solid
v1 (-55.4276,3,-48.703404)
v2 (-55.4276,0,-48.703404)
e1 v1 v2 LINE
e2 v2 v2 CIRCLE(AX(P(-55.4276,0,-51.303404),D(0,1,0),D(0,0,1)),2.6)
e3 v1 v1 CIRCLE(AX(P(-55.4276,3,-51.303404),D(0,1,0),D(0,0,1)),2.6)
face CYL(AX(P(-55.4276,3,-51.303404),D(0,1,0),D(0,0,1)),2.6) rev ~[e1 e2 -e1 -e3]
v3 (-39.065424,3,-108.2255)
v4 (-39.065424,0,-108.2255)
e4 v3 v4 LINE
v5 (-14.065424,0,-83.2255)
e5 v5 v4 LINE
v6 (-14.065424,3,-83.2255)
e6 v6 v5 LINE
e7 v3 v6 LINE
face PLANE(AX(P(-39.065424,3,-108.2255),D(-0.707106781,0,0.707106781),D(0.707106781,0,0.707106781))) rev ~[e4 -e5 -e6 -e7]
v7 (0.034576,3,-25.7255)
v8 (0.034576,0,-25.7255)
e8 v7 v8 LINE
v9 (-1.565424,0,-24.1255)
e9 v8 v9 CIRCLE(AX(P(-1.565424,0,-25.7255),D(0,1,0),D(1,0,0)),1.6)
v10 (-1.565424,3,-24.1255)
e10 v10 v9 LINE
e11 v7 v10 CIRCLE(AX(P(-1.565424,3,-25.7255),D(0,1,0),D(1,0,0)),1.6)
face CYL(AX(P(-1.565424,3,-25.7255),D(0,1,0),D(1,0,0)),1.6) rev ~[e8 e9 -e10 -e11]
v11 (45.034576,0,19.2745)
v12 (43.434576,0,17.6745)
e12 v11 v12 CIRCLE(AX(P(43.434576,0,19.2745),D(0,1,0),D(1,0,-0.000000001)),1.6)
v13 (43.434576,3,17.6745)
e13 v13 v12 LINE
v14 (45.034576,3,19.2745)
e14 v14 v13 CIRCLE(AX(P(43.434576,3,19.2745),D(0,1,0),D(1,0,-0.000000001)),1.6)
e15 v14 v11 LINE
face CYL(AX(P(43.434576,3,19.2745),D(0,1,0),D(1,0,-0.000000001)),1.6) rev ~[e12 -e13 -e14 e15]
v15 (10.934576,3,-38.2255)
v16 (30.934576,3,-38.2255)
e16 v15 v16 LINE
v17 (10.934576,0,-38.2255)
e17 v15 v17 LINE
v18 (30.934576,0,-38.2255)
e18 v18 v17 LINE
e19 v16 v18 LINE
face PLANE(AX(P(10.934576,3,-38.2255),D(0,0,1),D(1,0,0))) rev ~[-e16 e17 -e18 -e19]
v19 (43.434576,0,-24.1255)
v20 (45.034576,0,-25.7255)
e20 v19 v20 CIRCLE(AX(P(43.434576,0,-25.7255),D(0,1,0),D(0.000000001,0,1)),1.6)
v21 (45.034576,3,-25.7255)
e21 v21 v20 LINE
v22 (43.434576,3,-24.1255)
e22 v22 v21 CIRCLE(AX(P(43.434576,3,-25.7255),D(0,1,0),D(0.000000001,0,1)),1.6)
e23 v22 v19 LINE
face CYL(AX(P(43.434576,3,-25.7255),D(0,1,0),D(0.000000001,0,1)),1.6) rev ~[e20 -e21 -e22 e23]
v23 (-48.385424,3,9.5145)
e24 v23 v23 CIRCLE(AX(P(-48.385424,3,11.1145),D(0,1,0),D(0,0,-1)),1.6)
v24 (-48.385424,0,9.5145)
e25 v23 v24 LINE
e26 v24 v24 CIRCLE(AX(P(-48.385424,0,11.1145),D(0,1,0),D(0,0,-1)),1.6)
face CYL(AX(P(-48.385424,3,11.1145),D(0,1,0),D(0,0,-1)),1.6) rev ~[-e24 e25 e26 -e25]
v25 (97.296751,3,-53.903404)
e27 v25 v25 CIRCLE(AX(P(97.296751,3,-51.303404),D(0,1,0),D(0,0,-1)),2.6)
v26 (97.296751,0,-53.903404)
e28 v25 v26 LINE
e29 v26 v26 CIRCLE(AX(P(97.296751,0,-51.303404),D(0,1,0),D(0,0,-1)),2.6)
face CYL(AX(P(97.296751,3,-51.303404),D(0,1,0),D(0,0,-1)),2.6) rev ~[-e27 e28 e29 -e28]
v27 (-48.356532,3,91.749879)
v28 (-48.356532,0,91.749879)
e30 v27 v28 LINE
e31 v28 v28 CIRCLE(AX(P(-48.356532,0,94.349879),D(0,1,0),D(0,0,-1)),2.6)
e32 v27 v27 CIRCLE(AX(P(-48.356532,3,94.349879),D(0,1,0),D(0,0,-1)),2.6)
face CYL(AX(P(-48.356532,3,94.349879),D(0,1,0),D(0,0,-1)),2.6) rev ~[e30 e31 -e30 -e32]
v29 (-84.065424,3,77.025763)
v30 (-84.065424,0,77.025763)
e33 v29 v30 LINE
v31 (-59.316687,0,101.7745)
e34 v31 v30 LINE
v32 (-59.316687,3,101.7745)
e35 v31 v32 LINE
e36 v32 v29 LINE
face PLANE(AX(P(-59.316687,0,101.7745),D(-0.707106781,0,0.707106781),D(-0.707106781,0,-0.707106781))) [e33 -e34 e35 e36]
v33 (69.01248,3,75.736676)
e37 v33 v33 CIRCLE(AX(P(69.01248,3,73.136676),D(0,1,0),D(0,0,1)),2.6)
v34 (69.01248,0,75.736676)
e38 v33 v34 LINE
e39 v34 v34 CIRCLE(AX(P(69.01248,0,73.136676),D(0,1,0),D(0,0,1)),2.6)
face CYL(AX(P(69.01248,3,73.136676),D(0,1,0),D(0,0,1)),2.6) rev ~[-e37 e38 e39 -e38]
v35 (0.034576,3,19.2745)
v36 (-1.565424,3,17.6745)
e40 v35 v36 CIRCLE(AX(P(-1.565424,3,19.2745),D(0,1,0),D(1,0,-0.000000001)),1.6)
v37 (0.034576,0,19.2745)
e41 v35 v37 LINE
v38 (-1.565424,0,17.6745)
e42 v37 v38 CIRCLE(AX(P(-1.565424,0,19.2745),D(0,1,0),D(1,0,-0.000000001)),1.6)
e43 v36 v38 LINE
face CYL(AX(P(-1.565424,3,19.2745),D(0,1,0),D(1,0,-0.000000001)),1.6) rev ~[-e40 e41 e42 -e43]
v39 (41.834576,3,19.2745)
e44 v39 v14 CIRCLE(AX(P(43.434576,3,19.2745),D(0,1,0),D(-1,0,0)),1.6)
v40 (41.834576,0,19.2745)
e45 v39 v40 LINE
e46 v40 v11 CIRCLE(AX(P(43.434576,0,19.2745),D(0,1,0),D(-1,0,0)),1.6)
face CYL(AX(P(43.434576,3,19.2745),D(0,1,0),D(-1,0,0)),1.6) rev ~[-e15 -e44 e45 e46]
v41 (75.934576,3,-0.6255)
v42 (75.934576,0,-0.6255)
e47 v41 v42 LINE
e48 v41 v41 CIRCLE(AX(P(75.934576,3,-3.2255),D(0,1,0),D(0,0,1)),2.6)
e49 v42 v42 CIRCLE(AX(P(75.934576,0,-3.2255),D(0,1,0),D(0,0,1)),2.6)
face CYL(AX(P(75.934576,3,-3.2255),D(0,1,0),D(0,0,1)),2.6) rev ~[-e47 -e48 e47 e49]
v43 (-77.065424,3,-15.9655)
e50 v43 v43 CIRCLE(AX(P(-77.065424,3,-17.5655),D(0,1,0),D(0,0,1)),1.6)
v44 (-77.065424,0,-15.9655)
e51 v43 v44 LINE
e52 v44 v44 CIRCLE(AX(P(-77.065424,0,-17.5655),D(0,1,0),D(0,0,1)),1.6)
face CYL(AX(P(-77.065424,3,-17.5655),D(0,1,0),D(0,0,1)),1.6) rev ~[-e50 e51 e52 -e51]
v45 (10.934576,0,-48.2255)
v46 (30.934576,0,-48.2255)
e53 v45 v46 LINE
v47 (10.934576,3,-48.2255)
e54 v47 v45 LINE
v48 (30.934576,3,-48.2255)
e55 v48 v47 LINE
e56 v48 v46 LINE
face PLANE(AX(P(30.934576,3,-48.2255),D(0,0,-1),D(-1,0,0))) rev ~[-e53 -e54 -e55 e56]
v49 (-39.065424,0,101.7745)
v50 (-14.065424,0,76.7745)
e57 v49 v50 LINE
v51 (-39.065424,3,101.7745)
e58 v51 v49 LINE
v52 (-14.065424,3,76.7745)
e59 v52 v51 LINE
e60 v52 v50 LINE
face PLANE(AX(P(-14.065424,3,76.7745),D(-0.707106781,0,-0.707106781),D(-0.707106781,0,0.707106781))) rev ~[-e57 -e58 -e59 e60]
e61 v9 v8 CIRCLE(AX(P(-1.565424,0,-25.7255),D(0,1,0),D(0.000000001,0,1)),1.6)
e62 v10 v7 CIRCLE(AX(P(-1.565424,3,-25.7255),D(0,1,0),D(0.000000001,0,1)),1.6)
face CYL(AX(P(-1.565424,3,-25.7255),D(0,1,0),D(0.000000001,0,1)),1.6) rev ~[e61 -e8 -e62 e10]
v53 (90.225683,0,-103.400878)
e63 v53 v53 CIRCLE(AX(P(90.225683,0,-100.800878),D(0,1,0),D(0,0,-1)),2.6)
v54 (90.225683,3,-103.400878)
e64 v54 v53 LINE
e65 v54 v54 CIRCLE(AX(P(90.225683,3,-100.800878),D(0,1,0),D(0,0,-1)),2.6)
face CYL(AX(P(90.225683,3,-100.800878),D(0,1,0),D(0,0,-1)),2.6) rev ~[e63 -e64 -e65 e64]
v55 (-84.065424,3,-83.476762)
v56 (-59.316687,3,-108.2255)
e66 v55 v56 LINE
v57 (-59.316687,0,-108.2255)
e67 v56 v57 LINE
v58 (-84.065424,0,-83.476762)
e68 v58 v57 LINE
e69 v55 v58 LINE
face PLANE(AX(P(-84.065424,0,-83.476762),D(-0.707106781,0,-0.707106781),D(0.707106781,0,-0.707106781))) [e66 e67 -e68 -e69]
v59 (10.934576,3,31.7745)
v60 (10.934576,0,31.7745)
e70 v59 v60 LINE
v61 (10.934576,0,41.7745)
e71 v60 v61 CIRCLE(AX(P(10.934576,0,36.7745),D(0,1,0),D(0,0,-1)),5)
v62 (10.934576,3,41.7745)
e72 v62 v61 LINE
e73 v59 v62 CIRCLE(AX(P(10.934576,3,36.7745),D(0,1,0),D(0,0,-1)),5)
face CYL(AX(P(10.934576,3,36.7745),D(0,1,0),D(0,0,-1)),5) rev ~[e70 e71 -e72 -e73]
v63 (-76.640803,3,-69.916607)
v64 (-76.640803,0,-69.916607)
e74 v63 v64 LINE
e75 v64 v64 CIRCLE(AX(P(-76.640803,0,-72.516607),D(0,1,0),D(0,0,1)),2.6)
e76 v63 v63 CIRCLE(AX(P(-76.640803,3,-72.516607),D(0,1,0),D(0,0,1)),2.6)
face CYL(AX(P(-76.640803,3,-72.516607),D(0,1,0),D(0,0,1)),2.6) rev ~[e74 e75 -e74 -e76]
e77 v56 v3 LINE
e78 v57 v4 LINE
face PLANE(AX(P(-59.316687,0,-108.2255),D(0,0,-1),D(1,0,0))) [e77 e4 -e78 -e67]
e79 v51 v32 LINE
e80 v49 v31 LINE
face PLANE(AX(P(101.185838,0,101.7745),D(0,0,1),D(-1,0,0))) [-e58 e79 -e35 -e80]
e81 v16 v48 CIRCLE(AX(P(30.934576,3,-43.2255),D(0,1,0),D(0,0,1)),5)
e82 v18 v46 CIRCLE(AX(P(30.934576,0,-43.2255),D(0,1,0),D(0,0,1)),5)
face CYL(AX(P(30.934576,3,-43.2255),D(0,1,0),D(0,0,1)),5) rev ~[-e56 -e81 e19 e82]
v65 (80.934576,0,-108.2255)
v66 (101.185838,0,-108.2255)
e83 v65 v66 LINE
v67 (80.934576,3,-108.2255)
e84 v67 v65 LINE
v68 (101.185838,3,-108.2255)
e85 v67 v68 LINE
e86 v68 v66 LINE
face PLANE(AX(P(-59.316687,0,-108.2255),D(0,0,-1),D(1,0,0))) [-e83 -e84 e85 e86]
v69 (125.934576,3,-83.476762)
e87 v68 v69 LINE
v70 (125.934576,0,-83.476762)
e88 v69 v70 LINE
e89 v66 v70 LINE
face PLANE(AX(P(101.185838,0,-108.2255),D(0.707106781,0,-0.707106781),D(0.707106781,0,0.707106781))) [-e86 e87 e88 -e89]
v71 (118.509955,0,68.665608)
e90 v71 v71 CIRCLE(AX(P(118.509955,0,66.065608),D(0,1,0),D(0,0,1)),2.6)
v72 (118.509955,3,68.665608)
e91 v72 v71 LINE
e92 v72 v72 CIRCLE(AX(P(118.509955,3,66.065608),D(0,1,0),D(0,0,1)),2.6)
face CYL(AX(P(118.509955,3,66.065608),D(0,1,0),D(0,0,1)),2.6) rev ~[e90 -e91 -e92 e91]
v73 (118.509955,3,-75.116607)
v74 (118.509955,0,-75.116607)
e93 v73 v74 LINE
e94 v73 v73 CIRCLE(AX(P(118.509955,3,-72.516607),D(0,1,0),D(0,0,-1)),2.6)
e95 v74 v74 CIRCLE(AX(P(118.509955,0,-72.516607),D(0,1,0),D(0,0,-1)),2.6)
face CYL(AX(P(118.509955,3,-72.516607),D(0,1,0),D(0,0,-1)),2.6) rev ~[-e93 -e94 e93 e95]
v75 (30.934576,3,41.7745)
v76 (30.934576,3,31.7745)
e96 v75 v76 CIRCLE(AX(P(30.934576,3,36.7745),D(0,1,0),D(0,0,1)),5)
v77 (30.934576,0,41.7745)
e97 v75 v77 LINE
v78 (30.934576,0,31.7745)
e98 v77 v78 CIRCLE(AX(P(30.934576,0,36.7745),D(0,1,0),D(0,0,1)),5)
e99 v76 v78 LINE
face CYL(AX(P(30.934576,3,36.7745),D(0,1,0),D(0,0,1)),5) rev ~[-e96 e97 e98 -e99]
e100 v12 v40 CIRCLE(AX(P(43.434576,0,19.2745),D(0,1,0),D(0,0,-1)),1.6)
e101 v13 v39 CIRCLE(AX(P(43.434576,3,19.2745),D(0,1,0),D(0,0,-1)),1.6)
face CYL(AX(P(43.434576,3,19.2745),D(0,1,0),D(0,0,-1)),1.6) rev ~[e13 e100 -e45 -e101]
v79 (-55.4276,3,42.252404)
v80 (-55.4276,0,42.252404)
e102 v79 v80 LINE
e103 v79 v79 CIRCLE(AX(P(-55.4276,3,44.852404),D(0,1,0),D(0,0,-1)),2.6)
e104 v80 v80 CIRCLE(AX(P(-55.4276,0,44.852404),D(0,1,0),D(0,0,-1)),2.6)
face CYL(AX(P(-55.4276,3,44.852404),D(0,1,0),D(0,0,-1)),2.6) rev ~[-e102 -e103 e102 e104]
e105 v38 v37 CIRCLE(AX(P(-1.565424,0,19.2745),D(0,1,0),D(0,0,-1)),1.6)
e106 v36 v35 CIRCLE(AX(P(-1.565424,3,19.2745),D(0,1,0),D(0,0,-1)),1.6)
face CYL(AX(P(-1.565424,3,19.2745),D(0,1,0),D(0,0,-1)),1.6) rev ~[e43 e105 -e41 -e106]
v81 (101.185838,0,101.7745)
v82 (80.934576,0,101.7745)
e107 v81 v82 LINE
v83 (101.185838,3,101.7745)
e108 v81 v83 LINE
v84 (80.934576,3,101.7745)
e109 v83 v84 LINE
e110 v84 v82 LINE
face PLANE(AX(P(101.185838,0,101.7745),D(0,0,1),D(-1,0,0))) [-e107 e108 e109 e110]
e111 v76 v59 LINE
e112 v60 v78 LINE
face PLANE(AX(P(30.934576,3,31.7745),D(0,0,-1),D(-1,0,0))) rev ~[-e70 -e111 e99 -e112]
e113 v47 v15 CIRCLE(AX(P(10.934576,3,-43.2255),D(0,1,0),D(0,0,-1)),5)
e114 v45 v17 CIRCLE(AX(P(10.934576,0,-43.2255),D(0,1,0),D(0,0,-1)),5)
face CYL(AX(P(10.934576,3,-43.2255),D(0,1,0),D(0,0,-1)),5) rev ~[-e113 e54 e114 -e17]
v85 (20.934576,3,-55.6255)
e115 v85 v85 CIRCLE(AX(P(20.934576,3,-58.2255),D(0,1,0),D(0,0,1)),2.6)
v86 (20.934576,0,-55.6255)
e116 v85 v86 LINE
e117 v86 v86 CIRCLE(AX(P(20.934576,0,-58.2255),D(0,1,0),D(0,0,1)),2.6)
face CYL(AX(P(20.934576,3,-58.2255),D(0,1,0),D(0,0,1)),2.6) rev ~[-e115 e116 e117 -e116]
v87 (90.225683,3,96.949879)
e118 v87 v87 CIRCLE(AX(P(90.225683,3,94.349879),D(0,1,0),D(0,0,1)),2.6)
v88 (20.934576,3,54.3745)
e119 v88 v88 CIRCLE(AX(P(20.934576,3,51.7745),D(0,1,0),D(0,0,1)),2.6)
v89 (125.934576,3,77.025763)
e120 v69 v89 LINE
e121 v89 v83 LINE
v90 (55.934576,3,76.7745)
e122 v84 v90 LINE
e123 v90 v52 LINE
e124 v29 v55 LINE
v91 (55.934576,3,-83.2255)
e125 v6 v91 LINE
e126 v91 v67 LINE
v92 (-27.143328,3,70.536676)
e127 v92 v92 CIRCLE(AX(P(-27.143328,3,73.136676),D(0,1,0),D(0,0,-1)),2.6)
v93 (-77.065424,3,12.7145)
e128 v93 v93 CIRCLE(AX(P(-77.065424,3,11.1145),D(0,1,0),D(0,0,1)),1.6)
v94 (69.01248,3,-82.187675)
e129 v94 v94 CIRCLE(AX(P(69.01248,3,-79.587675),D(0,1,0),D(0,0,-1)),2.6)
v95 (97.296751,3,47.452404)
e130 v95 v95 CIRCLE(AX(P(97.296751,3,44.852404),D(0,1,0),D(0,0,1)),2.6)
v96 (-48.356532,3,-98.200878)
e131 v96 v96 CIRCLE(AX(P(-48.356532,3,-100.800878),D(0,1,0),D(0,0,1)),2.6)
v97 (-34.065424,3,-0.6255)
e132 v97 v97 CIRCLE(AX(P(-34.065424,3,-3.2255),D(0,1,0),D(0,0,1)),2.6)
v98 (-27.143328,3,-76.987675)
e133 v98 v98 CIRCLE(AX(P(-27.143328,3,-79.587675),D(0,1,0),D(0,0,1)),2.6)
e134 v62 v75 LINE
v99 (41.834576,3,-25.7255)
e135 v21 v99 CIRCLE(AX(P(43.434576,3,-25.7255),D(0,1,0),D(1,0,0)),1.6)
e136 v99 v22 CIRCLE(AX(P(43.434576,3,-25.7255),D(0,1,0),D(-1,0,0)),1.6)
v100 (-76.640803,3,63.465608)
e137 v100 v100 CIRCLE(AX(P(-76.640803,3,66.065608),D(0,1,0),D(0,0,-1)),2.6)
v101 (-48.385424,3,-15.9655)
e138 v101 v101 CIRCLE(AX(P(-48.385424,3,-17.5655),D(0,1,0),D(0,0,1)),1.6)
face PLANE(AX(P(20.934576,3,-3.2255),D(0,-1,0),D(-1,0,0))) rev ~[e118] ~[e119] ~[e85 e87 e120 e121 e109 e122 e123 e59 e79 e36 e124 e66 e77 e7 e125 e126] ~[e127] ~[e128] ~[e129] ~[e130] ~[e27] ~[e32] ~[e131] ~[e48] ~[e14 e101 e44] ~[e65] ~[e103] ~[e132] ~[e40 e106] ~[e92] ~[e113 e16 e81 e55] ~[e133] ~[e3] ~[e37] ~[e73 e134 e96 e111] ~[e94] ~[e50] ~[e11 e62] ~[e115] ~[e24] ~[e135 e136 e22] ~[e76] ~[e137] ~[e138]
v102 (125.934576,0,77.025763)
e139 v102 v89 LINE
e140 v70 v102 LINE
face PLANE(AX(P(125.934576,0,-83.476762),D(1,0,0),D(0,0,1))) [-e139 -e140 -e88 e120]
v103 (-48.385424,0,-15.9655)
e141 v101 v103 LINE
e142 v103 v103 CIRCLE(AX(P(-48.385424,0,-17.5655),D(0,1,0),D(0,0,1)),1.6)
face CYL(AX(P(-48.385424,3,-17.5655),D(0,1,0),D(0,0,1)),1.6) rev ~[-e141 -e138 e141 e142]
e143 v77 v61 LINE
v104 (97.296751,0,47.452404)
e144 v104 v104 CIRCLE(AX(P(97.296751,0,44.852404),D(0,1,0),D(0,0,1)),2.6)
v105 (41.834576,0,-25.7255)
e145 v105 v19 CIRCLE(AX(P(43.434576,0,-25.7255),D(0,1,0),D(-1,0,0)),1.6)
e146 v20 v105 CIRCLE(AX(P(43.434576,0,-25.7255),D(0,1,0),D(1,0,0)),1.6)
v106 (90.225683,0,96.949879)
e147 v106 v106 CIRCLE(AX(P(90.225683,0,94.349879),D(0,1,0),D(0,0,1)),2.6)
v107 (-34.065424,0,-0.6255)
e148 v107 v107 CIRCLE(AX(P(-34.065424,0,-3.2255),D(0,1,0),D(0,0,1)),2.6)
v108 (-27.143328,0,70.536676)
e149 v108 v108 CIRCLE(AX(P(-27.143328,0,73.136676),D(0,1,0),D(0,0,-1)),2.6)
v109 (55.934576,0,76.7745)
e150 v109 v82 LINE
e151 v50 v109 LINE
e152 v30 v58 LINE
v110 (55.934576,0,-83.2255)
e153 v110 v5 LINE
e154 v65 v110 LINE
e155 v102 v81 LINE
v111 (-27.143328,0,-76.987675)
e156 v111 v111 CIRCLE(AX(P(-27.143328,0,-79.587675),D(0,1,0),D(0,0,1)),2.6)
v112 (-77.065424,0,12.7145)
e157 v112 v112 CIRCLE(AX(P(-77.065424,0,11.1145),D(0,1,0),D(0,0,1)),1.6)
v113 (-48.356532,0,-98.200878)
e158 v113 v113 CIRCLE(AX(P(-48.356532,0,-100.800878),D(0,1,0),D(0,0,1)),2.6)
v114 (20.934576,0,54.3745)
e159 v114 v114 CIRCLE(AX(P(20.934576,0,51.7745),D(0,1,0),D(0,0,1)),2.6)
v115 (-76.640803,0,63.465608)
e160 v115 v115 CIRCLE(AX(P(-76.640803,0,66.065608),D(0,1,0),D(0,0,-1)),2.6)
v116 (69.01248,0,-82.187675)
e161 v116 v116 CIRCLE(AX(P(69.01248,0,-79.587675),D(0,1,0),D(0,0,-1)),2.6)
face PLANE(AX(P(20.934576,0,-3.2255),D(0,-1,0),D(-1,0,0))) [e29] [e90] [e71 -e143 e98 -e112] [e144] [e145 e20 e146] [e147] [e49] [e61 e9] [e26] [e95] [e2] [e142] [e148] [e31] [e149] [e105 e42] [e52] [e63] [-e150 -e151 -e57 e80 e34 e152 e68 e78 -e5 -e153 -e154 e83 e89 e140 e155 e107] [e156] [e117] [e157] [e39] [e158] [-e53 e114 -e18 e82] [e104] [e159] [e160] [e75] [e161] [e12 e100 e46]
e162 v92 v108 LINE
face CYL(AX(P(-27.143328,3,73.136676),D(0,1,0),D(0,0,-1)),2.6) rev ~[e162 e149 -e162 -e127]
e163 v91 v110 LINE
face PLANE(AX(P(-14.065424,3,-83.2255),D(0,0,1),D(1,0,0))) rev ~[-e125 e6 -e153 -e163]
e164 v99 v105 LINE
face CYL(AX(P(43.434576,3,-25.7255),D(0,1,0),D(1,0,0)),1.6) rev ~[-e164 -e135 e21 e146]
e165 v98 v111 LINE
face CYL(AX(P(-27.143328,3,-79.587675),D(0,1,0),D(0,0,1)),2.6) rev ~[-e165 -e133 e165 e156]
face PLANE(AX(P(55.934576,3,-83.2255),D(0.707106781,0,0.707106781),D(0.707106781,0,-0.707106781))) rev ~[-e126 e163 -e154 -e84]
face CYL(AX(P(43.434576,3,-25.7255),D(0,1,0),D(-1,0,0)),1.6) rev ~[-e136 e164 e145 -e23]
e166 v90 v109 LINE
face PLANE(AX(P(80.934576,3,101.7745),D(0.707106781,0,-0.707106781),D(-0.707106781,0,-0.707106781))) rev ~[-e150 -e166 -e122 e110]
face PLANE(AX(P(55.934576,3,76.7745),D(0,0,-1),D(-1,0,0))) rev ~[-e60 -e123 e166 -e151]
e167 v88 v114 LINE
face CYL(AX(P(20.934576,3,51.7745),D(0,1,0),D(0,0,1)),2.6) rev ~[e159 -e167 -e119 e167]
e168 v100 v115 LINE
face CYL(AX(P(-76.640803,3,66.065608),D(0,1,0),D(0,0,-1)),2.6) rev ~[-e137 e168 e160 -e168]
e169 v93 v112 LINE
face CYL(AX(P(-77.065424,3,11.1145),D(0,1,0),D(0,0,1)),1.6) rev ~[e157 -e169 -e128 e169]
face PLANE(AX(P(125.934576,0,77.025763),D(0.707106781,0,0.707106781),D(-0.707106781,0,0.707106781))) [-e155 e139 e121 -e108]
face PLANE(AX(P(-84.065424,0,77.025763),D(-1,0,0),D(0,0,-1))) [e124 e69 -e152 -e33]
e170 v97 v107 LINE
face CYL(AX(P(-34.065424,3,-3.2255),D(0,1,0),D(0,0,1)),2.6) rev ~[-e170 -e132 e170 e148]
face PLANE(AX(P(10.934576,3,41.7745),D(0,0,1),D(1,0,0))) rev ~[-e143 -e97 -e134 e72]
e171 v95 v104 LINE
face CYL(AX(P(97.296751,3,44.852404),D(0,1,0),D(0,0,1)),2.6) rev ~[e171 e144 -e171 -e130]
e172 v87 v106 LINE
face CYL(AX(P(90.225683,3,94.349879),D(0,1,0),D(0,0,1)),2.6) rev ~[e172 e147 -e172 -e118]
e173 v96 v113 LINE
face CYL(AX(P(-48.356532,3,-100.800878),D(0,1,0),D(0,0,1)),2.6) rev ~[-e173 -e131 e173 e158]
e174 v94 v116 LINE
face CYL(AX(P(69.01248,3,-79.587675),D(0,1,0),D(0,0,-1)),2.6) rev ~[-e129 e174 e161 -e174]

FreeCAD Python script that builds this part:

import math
import FreeCAD as App
import Part
import Sketcher
from FreeCAD import Vector

doc = App.newDocument("Part")
body = doc.addObject("PartDesign::Body", "Body")

# Sketch on XZ plane
sketch1 = body.newObject("Sketcher::SketchObject", "Sketch")
sketch1.AttachmentSupport = (doc.getObject("XZ_Plane"), [""])
sketch1.MapMode = "FlatFace"
sketch1.addGeometry([
    Part.LineSegment(Vector(101, -108, 0), Vector(-59, -108, 0)),  # 0
    Part.LineSegment(Vector(-59, -108, 0), Vector(-84, -83, 0)),  # 1
    Part.LineSegment(Vector(-84, -83, 0), Vector(-84, 77, 0)),  # 2
    Part.LineSegment(Vector(-84, 77, 0), Vector(-59, 102, 0)),  # 3
    Part.LineSegment(Vector(-59, 102, 0), Vector(101, 102, 0)),  # 4
    Part.LineSegment(Vector(101, 102, 0), Vector(126, 77, 0)),  # 5
    Part.LineSegment(Vector(126, 77, 0), Vector(126, -83, 0)),  # 6
    Part.LineSegment(Vector(126, -83, 0), Vector(101, -108, 0)),  # 7
], False)
sketch1.addConstraint([
    Sketcher.Constraint("Coincident", 0, 2, 1, 1),
    Sketcher.Constraint("Coincident", 1, 2, 2, 1),
    Sketcher.Constraint("Coincident", 2, 2, 3, 1),
    Sketcher.Constraint("Coincident", 3, 2, 4, 1),
    Sketcher.Constraint("Coincident", 4, 2, 5, 1),
    Sketcher.Constraint("Coincident", 5, 2, 6, 1),
    Sketcher.Constraint("Coincident", 6, 2, 7, 1),
    Sketcher.Constraint("Coincident", 7, 2, 0, 1),
    Sketcher.Constraint("Horizontal", 0),
    Sketcher.Constraint("Vertical", 2),
    Sketcher.Constraint("Horizontal", 4),
    Sketcher.Constraint("Vertical", 6),
    Sketcher.Constraint("Perpendicular", 1, 3),
    Sketcher.Constraint("Perpendicular", 3, 5),
    Sketcher.Constraint("Perpendicular", 5, 7),
    Sketcher.Constraint("Horizontal", 2, 2, 5, 2),
    Sketcher.Constraint("Horizontal", 1, 2, 6, 2),
    Sketcher.Constraint("Vertical", 0, 2, 3, 2),
    Sketcher.Constraint("Vertical", 4, 2, 7, 2),
    Sketcher.Constraint("Equal", 4, 2),
    Sketcher.Constraint("Distance", 1, 35.0),
    Sketcher.Constraint("DistanceY", 0, 2, 3, 2, 210.0),
    Sketcher.Constraint("DistanceY", 0, 2, -1, 1, 108.2255),
    Sketcher.Constraint("DistanceX", -1, 1, 4, 2, 101.185838),
])
pad1 = body.newObject("PartDesign::Pad", "Pad")
pad1.Profile = sketch1
pad1.Length = 3
pad1.Reversed = True

# Sketch on XZ plane
sketch2 = body.newObject("Sketcher::SketchObject", "Sketch001")
sketch2.AttachmentSupport = (doc.getObject("XZ_Plane"), [""])
sketch2.MapMode = "FlatFace"
sketch2.AttachmentOffset = App.Placement(Vector(0, 0, -3), App.Rotation())
sketch2.addGeometry([
    Part.LineSegment(Vector(-45, 38, 0), Vector(-84, 77, 0)),  # 0
    Part.LineSegment(Vector(-84, 77, 0), Vector(-59, 102, 0)),  # 1
    Part.LineSegment(Vector(-59, 102, 0), Vector(-20, 63, 0)),  # 2
    Part.LineSegment(Vector(-20, 63, 0), Vector(-45, 38, 0)),  # 3
    Part.LineSegment(Vector(126, 77, 0), Vector(94, 37, 0)),  # 4
    Part.LineSegment(Vector(94, 37, 0), Vector(67, 59, 0)),  # 5
    Part.LineSegment(Vector(67, 59, 0), Vector(101, 102, 0)),  # 6
    Part.LineSegment(Vector(101, 102, 0), Vector(126, 77, 0)),  # 7
    Part.LineSegment(Vector(101, -108, 0), Vector(62, -70, 0)),  # 8
    Part.LineSegment(Vector(62, -70, 0), Vector(87, -45, 0)),  # 9
    Part.LineSegment(Vector(87, -45, 0), Vector(126, -83, 0)),  # 10
    Part.LineSegment(Vector(126, -83, 0), Vector(101, -108, 0)),  # 11
    Part.LineSegment(Vector(-24, -66, 0), Vector(-59, -108, 0)),  # 12
    Part.LineSegment(Vector(-59, -108, 0), Vector(-84, -83, 0)),  # 13
    Part.LineSegment(Vector(-84, -83, 0), Vector(-51, -44, 0)),  # 14
    Part.LineSegment(Vector(-51, -44, 0), Vector(-24, -66, 0)),  # 15
], False)
sketch2.addConstraint([
    Sketcher.Constraint("Coincident", 0, 2, 1, 1),
    Sketcher.Constraint("Coincident", 1, 2, 2, 1),
    Sketcher.Constraint("Coincident", 2, 2, 3, 1),
    Sketcher.Constraint("Coincident", 3, 2, 0, 1),
    Sketcher.Constraint("Coincident", 4, 2, 5, 1),
    Sketcher.Constraint("Coincident", 5, 2, 6, 1),
    Sketcher.Constraint("Coincident", 6, 2, 7, 1),
    Sketcher.Constraint("Coincident", 7, 2, 4, 1),
    Sketcher.Constraint("Coincident", 8, 2, 9, 1),
    Sketcher.Constraint("Coincident", 9, 2, 10, 1),
    Sketcher.Constraint("Coincident", 10, 2, 11, 1),
    Sketcher.Constraint("Coincident", 11, 2, 8, 1),
    Sketcher.Constraint("Coincident", 12, 2, 13, 1),
    Sketcher.Constraint("Coincident", 13, 2, 14, 1),
    Sketcher.Constraint("Coincident", 14, 2, 15, 1),
    Sketcher.Constraint("Coincident", 15, 2, 12, 1),
    Sketcher.Constraint("Perpendicular", 0, 1),
    Sketcher.Constraint("Perpendicular", 1, 2),
    Sketcher.Constraint("Perpendicular", 2, 3),
    Sketcher.Constraint("Perpendicular", 4, 5),
    Sketcher.Constraint("Perpendicular", 5, 6),
    Sketcher.Constraint("Perpendicular", 3, 7),
    Sketcher.Constraint("Perpendicular", 8, 9),
    Sketcher.Constraint("Perpendicular", 9, 10),
    Sketcher.Constraint("Perpendicular", 7, 11),
    Sketcher.Constraint("Perpendicular", 11, 13),
    Sketcher.Constraint("Parallel", 12, 14),
    Sketcher.Constraint("Perpendicular", 14, 15),
    Sketcher.Constraint("Horizontal", 1, 2, 6, 2),
    Sketcher.Constraint("Horizontal", 0, 2, 7, 2),
    Sketcher.Constraint("Horizontal", 11, 2, 12, 2),
    Sketcher.Constraint("Horizontal", 10, 2, 13, 2),
    Sketcher.Constraint("Vertical", 7, 2, 10, 2),
    Sketcher.Constraint("Vertical", 6, 2, 11, 2),
    Sketcher.Constraint("Vertical", 1, 2, 12, 2),
    Sketcher.Constraint("Vertical", 0, 2, 13, 2),
    Sketcher.Constraint("Equal", 2, 6),
    Sketcher.Constraint("Equal", 6, 10),
    Sketcher.Constraint("Equal", 10, 12),
    Sketcher.Constraint("Distance", 0, 55.0),
    Sketcher.Constraint("Distance", 1, 35.0),
    Sketcher.Constraint("DistanceY", -1, 1, 1, 2, 101.7745),
    Sketcher.Constraint("DistanceY", 11, 2, -1, 1, 108.2255),
    Sketcher.Constraint("DistanceX", 3, 2, 4, 2, 139.055401),
    Sketcher.Constraint("DistanceY", 5, 2, 0, 2, 18.137702),
    Sketcher.Constraint("Distance", 8, 54.65826),
    Sketcher.Constraint("DistanceX", 3, 2, -1, 1, 45.174551),
    Sketcher.Constraint("DistanceX", 14, 2, -1, 1, 50.874641),
])
pad2 = body.newObject("PartDesign::Pad", "Pad001")
pad2.Profile = sketch2
pad2.Length = 2

# Sketch on XZ plane
sketch3 = body.newObject("Sketcher::SketchObject", "Sketch002")
sketch3.AttachmentSupport = (doc.getObject("XZ_Plane"), [""])
sketch3.MapMode = "FlatFace"
sketch3.AttachmentOffset = App.Placement(Vector(0, 0, -3), App.Rotation())
sketch3.addGeometry([
    Part.ArcOfCircle(Part.Circle(Vector(-1.6, 19.3, 0), Vector(0, 0, 1), 1.6), math.radians(0), math.radians(270)),  # 0
    Part.ArcOfCircle(Part.Circle(Vector(-1.6, 19.3, 0), Vector(0, 0, 1), 1.6), math.radians(-90), math.radians(0)),  # 1
    Part.ArcOfCircle(Part.Circle(Vector(43.4, 19.3, 0), Vector(0, 0, 1), 1.6), math.radians(180), math.radians(270)),  # 2
    Part.ArcOfCircle(Part.Circle(Vector(43.4, 19.3, 0), Vector(0, 0, 1), 1.6), math.radians(0), math.radians(180)),  # 3
    Part.ArcOfCircle(Part.Circle(Vector(43.4, 19.3, 0), Vector(0, 0, 1), 1.6), math.radians(-90), math.radians(0)),  # 4
    Part.ArcOfCircle(Part.Circle(Vector(43.4, -25.7, 0), Vector(0, 0, 1), 1.6), math.radians(180), math.radians(360)),  # 5
    Part.ArcOfCircle(Part.Circle(Vector(43.4, -25.7, 0), Vector(0, 0, 1), 1.6), math.radians(90), math.radians(180)),  # 6
    Part.ArcOfCircle(Part.Circle(Vector(43.4, -25.7, 0), Vector(0, 0, 1), 1.6), math.radians(0), math.radians(90)),  # 7
    Part.ArcOfCircle(Part.Circle(Vector(-1.6, -25.7, 0), Vector(0, 0, 1), 1.6), math.radians(0), math.radians(90)),  # 8
    Part.ArcOfCircle(Part.Circle(Vector(-1.6, -25.7, 0), Vector(0, 0, 1), 1.6), math.radians(90), math.radians(360)),  # 9
], False)
sketch3.addConstraint([
    Sketcher.Constraint("Tangent", 0, 1, 1, 2),
    Sketcher.Constraint("Coincident", 1, 1, 0, 2),
    Sketcher.Constraint("Tangent", 2, 1, 3, 2),
    Sketcher.Constraint("Tangent", 3, 1, 4, 2),
    Sketcher.Constraint("Tangent", 4, 1, 2, 2),
    Sketcher.Constraint("Tangent", 5, 1, 6, 2),
    Sketcher.Constraint("Tangent", 6, 1, 7, 2),
    Sketcher.Constraint("Tangent", 7, 1, 5, 2),
    Sketcher.Constraint("Tangent", 8, 1, 9, 2),
    Sketcher.Constraint("Coincident", 9, 1, 8, 2),
    Sketcher.Constraint("Equal", 1, 2),
    Sketcher.Constraint("Equal", 4, 5),
    Sketcher.Constraint("Equal", 7, 8),
    Sketcher.Constraint("Horizontal", 1, 3, 2, 3),
    Sketcher.Constraint("Horizontal", 7, 3, 8, 3),
    Sketcher.Constraint("Horizontal", 4, 3, 0, 1),
    Sketcher.Constraint("Horizontal", 0, 1, 2, 1),
    Sketcher.Constraint("Horizontal", 2, 1, 3, 1),
    Sketcher.Constraint("Horizontal", 9, 3, 5, 1),
    Sketcher.Constraint("Horizontal", 5, 1, 7, 1),
    Sketcher.Constraint("Horizontal", 7, 1, 8, 1),
    Sketcher.Constraint("Vertical", 4, 3, 5, 3),
    Sketcher.Constraint("Vertical", 1, 3, 8, 3),
    Sketcher.Constraint("Vertical", 9, 3, 1, 1),
    Sketcher.Constraint("Vertical", 7, 3, 4, 1),
    Sketcher.Constraint("Vertical", 4, 1, 6, 1),
    Sketcher.Constraint("Vertical", 1, 1, 9, 1),
    Sketcher.Constraint("Radius", 0, 1.6),
    Sketcher.Constraint("DistanceX", 0, 3, 2, 3, 45.0),
    Sketcher.Constraint("DistanceY", 5, 3, 2, 3, 45.0),
    Sketcher.Constraint("DistanceY", -1, 1, 0, 3, 19.2745),
    Sketcher.Constraint("DistanceX", 0, 3, -1, 1, 1.565424),
])
pocket1 = body.newObject("PartDesign::Pocket", "Pocket")
pocket1.Profile = sketch3
pocket1.Type = "ThroughAll"
pocket1.Reversed = True

# Sketch on XZ plane
sketch4 = body.newObject("Sketcher::SketchObject", "Sketch003")
sketch4.AttachmentSupport = (doc.getObject("XZ_Plane"), [""])
sketch4.MapMode = "FlatFace"
sketch4.AttachmentOffset = App.Placement(Vector(0, 0, -3), App.Rotation())
sketch4.addGeometry([
    Part.Circle(Vector(-27.1, -79.6, 0), Vector(0, 0, 1), 2.6),  # 0
    Part.Circle(Vector(-55.4, -51.3, 0), Vector(0, 0, 1), 2.6),  # 1
    Part.Circle(Vector(-76.6, -72.5, 0), Vector(0, 0, 1), 2.6),  # 2
    Part.Circle(Vector(-48.4, -100.8, 0), Vector(0, 0, 1), 2.6),  # 3
    Part.Circle(Vector(118.5, -72.5, 0), Vector(0, 0, 1), 2.6),  # 4
    Part.Circle(Vector(97.3, -51.3, 0), Vector(0, 0, 1), 2.6),  # 5
    Part.Circle(Vector(69, -79.6, 0), Vector(0, 0, 1), 2.6),  # 6
    Part.Circle(Vector(90.2, -100.8, 0), Vector(0, 0, 1), 2.6),  # 7
    Part.Circle(Vector(97.3, 44.9, 0), Vector(0, 0, 1), 2.6),  # 8
    Part.Circle(Vector(118.5, 66.1, 0), Vector(0, 0, 1), 2.6),  # 9
    Part.Circle(Vector(90.2, 94.3, 0), Vector(0, 0, 1), 2.6),  # 10
    Part.Circle(Vector(69, 73.1, 0), Vector(0, 0, 1), 2.6),  # 11
    Part.Circle(Vector(-27.1, 73.1, 0), Vector(0, 0, 1), 2.6),  # 12
    Part.Circle(Vector(-55.4, 44.9, 0), Vector(0, 0, 1), 2.6),  # 13
    Part.Circle(Vector(-76.6, 66.1, 0), Vector(0, 0, 1), 2.6),  # 14
    Part.Circle(Vector(-48.4, 94.3, 0), Vector(0, 0, 1), 2.6),  # 15
], False)
sketch4.addConstraint([
    Sketcher.Constraint("Equal", 0, 1),
    Sketcher.Constraint("Equal", 1, 2),
    Sketcher.Constraint("Equal", 2, 3),
    Sketcher.Constraint("Equal", 3, 4),
    Sketcher.Constraint("Equal", 4, 5),
    Sketcher.Constraint("Equal", 5, 6),
    Sketcher.Constraint("Equal", 6, 7),
    Sketcher.Constraint("Equal", 7, 8),
    Sketcher.Constraint("Equal", 8, 9),
    Sketcher.Constraint("Equal", 9, 10),
    Sketcher.Constraint("Equal", 10, 11),
    Sketcher.Constraint("Equal", 11, 12),
    Sketcher.Constraint("Equal", 12, 13),
    Sketcher.Constraint("Equal", 13, 14),
    Sketcher.Constraint("Equal", 14, 15),
    Sketcher.Constraint("Horizontal", 2, 3, 4, 3),
    Sketcher.Constraint("Horizontal", 1, 3, 5, 3),
    Sketcher.Constraint("Horizontal", 0, 3, 6, 3),
    Sketcher.Constraint("Horizontal", 3, 3, 7, 3),
    Sketcher.Constraint("Horizontal", 11, 3, 12, 3),
    Sketcher.Constraint("Horizontal", 8, 3, 13, 3),
    Sketcher.Constraint("Horizontal", 9, 3, 14, 3),
    Sketcher.Constraint("Horizontal", 10, 3, 15, 3),
    Sketcher.Constraint("Vertical", 5, 3, 8, 3),
    Sketcher.Constraint("Vertical", 4, 3, 9, 3),
    Sketcher.Constraint("Vertical", 7, 3, 10, 3),
    Sketcher.Constraint("Vertical", 6, 3, 11, 3),
    Sketcher.Constraint("Vertical", 0, 3, 12, 3),
    Sketcher.Constraint("Vertical", 1, 3, 13, 3),
    Sketcher.Constraint("Vertical", 2, 3, 14, 3),
    Sketcher.Constraint("Vertical", 3, 3, 15, 3),
    Sketcher.Constraint("Diameter", 0, 5.2),
    Sketcher.Constraint("DistanceX", 1, 3, -1, 1, 55.4276),
    Sketcher.Constraint("DistanceX", 0, 3, -1, 1, 27.143328),
    Sketcher.Constraint("DistanceX", 3, 3, -1, 1, 48.356532),
    Sketcher.Constraint("DistanceY", 3, 3, -1, 1, 100.800878),
    Sketcher.Constraint("DistanceX", -1, 1, 5, 3, 97.296751),
    Sketcher.Constraint("DistanceX", -1, 1, 6, 3, 69.01248),
    Sketcher.Constraint("DistanceY", -1, 1, 10, 3, 94.349879),
    Sketcher.Constraint("DistanceY", 0, 3, 1, 3, 28.284271),
    Sketcher.Constraint("DistanceX", 2, 3, 3, 3, 28.284271),
    Sketcher.Constraint("DistanceY", 3, 3, 2, 3, 28.284271),
    Sketcher.Constraint("DistanceX", 7, 3, 4, 3, 28.284271),
    Sketcher.Constraint("DistanceX", 0, 3, 7, 3, 117.369012),
    Sketcher.Constraint("DistanceY", 5, 3, 8, 3, 96.155808),
    Sketcher.Constraint("DistanceY", 4, 3, 8, 3, 117.369012),
    Sketcher.Constraint("DistanceY", 5, 3, 9, 3, 117.369012),
    Sketcher.Constraint("DistanceY", 8, 3, 11, 3, 28.284271),
])
pocket2 = body.newObject("PartDesign::Pocket", "Pocket001")
pocket2.Profile = sketch4
pocket2.Type = "ThroughAll"
pocket2.Reversed = True

# Sketch on XZ plane
sketch5 = body.newObject("Sketcher::SketchObject", "Sketch004")
sketch5.AttachmentSupport = (doc.getObject("XZ_Plane"), [""])
sketch5.MapMode = "FlatFace"
sketch5.AttachmentOffset = App.Placement(Vector(0, 0, -3), App.Rotation())
sketch5.addGeometry([
    Part.LineSegment(Vector(-14, -83, 0), Vector(56, -83, 0)),  # 0
    Part.LineSegment(Vector(56, -83, 0), Vector(81, -108, 0)),  # 1
    Part.LineSegment(Vector(81, -108, 0), Vector(-39, -108, 0)),  # 2
    Part.LineSegment(Vector(-39, -108, 0), Vector(-14, -83, 0)),  # 3
    Part.LineSegment(Vector(-14, 77, 0), Vector(-39, 102, 0)),  # 4
    Part.LineSegment(Vector(-39, 102, 0), Vector(81, 102, 0)),  # 5
    Part.LineSegment(Vector(81, 102, 0), Vector(56, 77, 0)),  # 6
    Part.LineSegment(Vector(56, 77, 0), Vector(-14, 77, 0)),  # 7
], False)
sketch5.addConstraint([
    Sketcher.Constraint("Coincident", 0, 2, 1, 1),
    Sketcher.Constraint("Coincident", 1, 2, 2, 1),
    Sketcher.Constraint("Coincident", 2, 2, 3, 1),
    Sketcher.Constraint("Coincident", 3, 2, 0, 1),
    Sketcher.Constraint("Coincident", 4, 2, 5, 1),
    Sketcher.Constraint("Coincident", 5, 2, 6, 1),
    Sketcher.Constraint("Coincident", 6, 2, 7, 1),
    Sketcher.Constraint("Coincident", 7, 2, 4, 1),
    Sketcher.Constraint("Horizontal", 0),
    Sketcher.Constraint("Horizontal", 2),
    Sketcher.Constraint("Horizontal", 5),
    Sketcher.Constraint("Horizontal", 7),
    Sketcher.Constraint("Perpendicular", 1, 3),
    Sketcher.Constraint("Perpendicular", 3, 4),
    Sketcher.Constraint("Perpendicular", 4, 6),
    Sketcher.Constraint("Vertical", 2, 2, 4, 2),
    Sketcher.Constraint("Vertical", 1, 2, 5, 2),
    Sketcher.Constraint("Vertical", 0, 2, 6, 2),
    Sketcher.Constraint("Vertical", 3, 2, 7, 2),
    Sketcher.Constraint("DistanceX", 0, 1, 0, 2, 70.0),
    Sketcher.Constraint("DistanceX", 2, 2, 2, 1, 120.0),
    Sketcher.Constraint("DistanceY", 3, 2, 4, 2, 185.0),
    Sketcher.Constraint("DistanceY", 0, 2, -1, 1, 83.2255),
    Sketcher.Constraint("DistanceX", -1, 1, 0, 2, 55.934576),
])
pocket3 = body.newObject("PartDesign::Pocket", "Pocket002")
pocket3.Profile = sketch5
pocket3.Type = "ThroughAll"
pocket3.Reversed = True

# Sketch on XZ plane
sketch6 = body.newObject("Sketcher::SketchObject", "Sketch005")
sketch6.AttachmentSupport = (doc.getObject("XZ_Plane"), [""])
sketch6.MapMode = "FlatFace"
sketch6.AttachmentOffset = App.Placement(Vector(0, 0, -3), App.Rotation())
sketch6.addGeometry([
    Part.Circle(Vector(-77.1, -17.6, 0), Vector(0, 0, 1), 1.6),
    Part.Circle(Vector(-77.1, 11.1, 0), Vector(0, 0, 1), 1.6),
    Part.Circle(Vector(-48.4, -17.6, 0), Vector(0, 0, 1), 1.6),
    Part.Circle(Vector(-48.4, 11.1, 0), Vector(0, 0, 1), 1.6),
], False)
sketch6.addConstraint([
    Sketcher.Constraint("Equal", 0, 1),
    Sketcher.Constraint("Equal", 1, 2),
    Sketcher.Constraint("Equal", 2, 3),
    Sketcher.Constraint("Horizontal", 0, 3, 2, 3),
    Sketcher.Constraint("Horizontal", 1, 3, 3, 3),
    Sketcher.Constraint("Vertical", 0, 3, 1, 3),
    Sketcher.Constraint("Vertical", 2, 3, 3, 3),
    Sketcher.Constraint("Diameter", 0, 3.2),
    Sketcher.Constraint("DistanceY", 0, 3, 1, 3, 28.68),
    Sketcher.Constraint("DistanceX", 0, 3, 2, 3, 28.68),
    Sketcher.Constraint("DistanceY", 0, 3, -1, 1, 17.5655),
    Sketcher.Constraint("DistanceX", 0, 3, -1, 1, 77.065424),
])
pocket4 = body.newObject("PartDesign::Pocket", "Pocket003")
pocket4.Profile = sketch6
pocket4.Length = 10
pocket4.Reversed = True

# Sketch on XZ plane
sketch7 = body.newObject("Sketcher::SketchObject", "Sketch006")
sketch7.AttachmentSupport = (doc.getObject("XZ_Plane"), [""])
sketch7.MapMode = "FlatFace"
sketch7.AttachmentOffset = App.Placement(Vector(0, 0, -3), App.Rotation())
sketch7.addGeometry([
    Part.Circle(Vector(-34.1, -3.2, 0), Vector(0, 0, 1), 2.6),
    Part.Circle(Vector(20.9, 51.8, 0), Vector(0, 0, 1), 2.6),
    Part.Circle(Vector(75.9, -3.2, 0), Vector(0, 0, 1), 2.6),
    Part.Circle(Vector(20.9, -58.2, 0), Vector(0, 0, 1), 2.6),
], False)
sketch7.addConstraint([
    Sketcher.Constraint("Equal", 0, 1),
    Sketcher.Constraint("Equal", 1, 2),
    Sketcher.Constraint("Equal", 2, 3),
    Sketcher.Constraint("Horizontal", 0, 3, 2, 3),
    Sketcher.Constraint("Vertical", 1, 3, 3, 3),
    Sketcher.Constraint("Diameter", 0, 5.2),
    Sketcher.Constraint("DistanceX", 0, 3, 1, 3, 55.0),
    Sketcher.Constraint("DistanceY", 0, 3, 1, 3, 55.0),
    Sketcher.Constraint("DistanceX", 1, 3, 2, 3, 55.0),
    Sketcher.Constraint("DistanceY", 3, 3, 0, 3, 55.0),
    Sketcher.Constraint("DistanceY", 0, 3, -1, 1, 3.2255),
    Sketcher.Constraint("DistanceX", 0, 3, -1, 1, 34.065424),
])
pocket5 = body.newObject("PartDesign::Pocket", "Pocket004")
pocket5.Profile = sketch7
pocket5.Length = 10
pocket5.Reversed = True

# Sketch on XZ plane
sketch8 = body.newObject("Sketcher::SketchObject", "Sketch007")
sketch8.AttachmentSupport = (doc.getObject("XZ_Plane"), [""])
sketch8.MapMode = "FlatFace"
sketch8.AttachmentOffset = App.Placement(Vector(0, 0, -3), App.Rotation())
sketch8.addGeometry([
    Part.LineSegment(Vector(11, 42, 0), Vector(31, 42, 0)),  # 0
    Part.ArcOfCircle(Part.Circle(Vector(31, 37, 0), Vector(0, 0, 1), 5), math.radians(-90), math.radians(90)),  # 1
    Part.LineSegment(Vector(31, 32, 0), Vector(11, 32, 0)),  # 2
    Part.ArcOfCircle(Part.Circle(Vector(11, 37, 0), Vector(0, 0, 1), 5), math.radians(90), math.radians(270)),  # 3
    Part.LineSegment(Vector(11, -38, 0), Vector(31, -38, 0)),  # 4
    Part.ArcOfCircle(Part.Circle(Vector(31, -43, 0), Vector(0, 0, 1), 5), math.radians(-90), math.radians(90)),  # 5
    Part.LineSegment(Vector(31, -48, 0), Vector(11, -48, 0)),  # 6
    Part.ArcOfCircle(Part.Circle(Vector(11, -43, 0), Vector(0, 0, 1), 5), math.radians(90), math.radians(270)),  # 7
], False)
sketch8.addConstraint([
    Sketcher.Constraint("Tangent", 0, 2, 1, 2),
    Sketcher.Constraint("Tangent", 1, 1, 2, 1),
    Sketcher.Constraint("Tangent", 2, 2, 3, 2),
    Sketcher.Constraint("Tangent", 3, 1, 0, 1),
    Sketcher.Constraint("Tangent", 4, 2, 5, 2),
    Sketcher.Constraint("Tangent", 5, 1, 6, 1),
    Sketcher.Constraint("Tangent", 6, 2, 7, 2),
    Sketcher.Constraint("Tangent", 7, 1, 4, 1),
    Sketcher.Constraint("Horizontal", 0),
    Sketcher.Constraint("Horizontal", 2),
    Sketcher.Constraint("Horizontal", 4),
    Sketcher.Constraint("Horizontal", 6),
    Sketcher.Constraint("Equal", 3, 5),
    Sketcher.Constraint("Vertical", 1, 3, 5, 3),
    Sketcher.Constraint("Vertical", 3, 3, 7, 3),
    Sketcher.Constraint("Radius", 1, 5.0),
    Sketcher.Constraint("DistanceX", 0, 1, 0, 2, 20.0),
    Sketcher.Constraint("DistanceY", 5, 3, 1, 3, 80.0),
    Sketcher.Constraint("DistanceY", -1, 1, 1, 3, 36.7745),
    Sketcher.Constraint("DistanceX", -1, 1, 1, 3, 30.934576),
])
pocket6 = body.newObject("PartDesign::Pocket", "Pocket005")
pocket6.Profile = sketch8
pocket6.Type = "ThroughAll"
pocket6.Reversed = True

doc.recompute()
